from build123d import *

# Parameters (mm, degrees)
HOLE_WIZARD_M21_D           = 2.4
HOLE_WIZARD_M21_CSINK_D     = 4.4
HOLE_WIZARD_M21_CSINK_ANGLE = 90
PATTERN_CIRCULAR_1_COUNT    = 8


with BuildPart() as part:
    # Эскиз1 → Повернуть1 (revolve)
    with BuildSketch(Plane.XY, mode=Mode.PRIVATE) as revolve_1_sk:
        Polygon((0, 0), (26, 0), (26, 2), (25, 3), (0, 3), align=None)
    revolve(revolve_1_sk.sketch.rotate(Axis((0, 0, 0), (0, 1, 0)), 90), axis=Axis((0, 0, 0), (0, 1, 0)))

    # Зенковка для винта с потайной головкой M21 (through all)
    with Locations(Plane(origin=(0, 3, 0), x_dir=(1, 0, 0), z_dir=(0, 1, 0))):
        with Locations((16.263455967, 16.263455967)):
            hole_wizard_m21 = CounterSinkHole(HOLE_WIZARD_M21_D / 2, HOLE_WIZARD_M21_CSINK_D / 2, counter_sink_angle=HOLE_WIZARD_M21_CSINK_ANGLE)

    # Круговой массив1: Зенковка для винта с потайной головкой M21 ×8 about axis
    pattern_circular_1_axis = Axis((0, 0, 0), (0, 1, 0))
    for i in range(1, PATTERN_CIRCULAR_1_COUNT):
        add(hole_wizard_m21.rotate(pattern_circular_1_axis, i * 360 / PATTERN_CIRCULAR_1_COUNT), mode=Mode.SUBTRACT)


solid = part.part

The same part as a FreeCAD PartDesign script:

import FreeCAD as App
import Part
import Sketcher

V = App.Vector
Q = App.Units.Quantity

doc = App.newDocument("Part")
body = doc.addObject("PartDesign::Body", "Body")

# Sketch on XY plane
sketch1 = body.newObject("Sketcher::SketchObject", "Sketch")
sketch1.AttachmentSupport = (doc.getObject("XY_Plane"), [""])
sketch1.MapMode = "FlatFace"
sketch1.addGeometry(Part.LineSegment(V(0, 0, 0), V(26, 0, 0)), False)
sketch1.addGeometry(Part.LineSegment(V(26, 0, 0), V(26, 2, 0)), False)
sketch1.addGeometry(Part.LineSegment(V(26, 2, 0), V(25, 3, 0)), False)
sketch1.addGeometry(Part.LineSegment(V(25, 3, 0), V(0, 3, 0)), False)
sketch1.addGeometry(Part.LineSegment(V(0, 3, 0), V(0, 0, 0)), False)
sketch1.addConstraint(Sketcher.Constraint("Coincident", 0, 2, 1, 1))
sketch1.addConstraint(Sketcher.Constraint("Coincident", 1, 2, 2, 1))
sketch1.addConstraint(Sketcher.Constraint("Coincident", 2, 2, 3, 1))
sketch1.addConstraint(Sketcher.Constraint("Coincident", 3, 2, 4, 1))
sketch1.addConstraint(Sketcher.Constraint("Coincident", 4, 2, 0, 1))
sketch1.addConstraint(Sketcher.Constraint("Horizontal", 0))
sketch1.addConstraint(Sketcher.Constraint("Vertical", 1))
sketch1.addConstraint(Sketcher.Constraint("Horizontal", 3))
sketch1.addConstraint(Sketcher.Constraint("Vertical", 4))
sketch1.addConstraint(Sketcher.Constraint("Coincident", 4, 2, -1, 1))
sketch1.addConstraint(Sketcher.Constraint("DistanceX", 0, 1, 0, 2, Q("26 mm")))
sketch1.addConstraint(Sketcher.Constraint("DistanceX", 3, 2, 3, 1, Q("25 mm")))
sketch1.addConstraint(Sketcher.Constraint("DistanceY", 1, 1, 1, 2, Q("2 mm")))
sketch1.addConstraint(Sketcher.Constraint("DistanceY", 4, 2, 4, 1, Q("3 mm")))
revolution = body.newObject("PartDesign::Revolution", "Revolution")
revolution.Profile = sketch1
revolution.ReferenceAxis = (sketch1, ["V_Axis"])
revolution.Angle = 360

# Sketch on XZ plane
sketch2 = body.newObject("Sketcher::SketchObject", "Sketch001")
sketch2.AttachmentSupport = (doc.getObject("XZ_Plane"), [""])
sketch2.MapMode = "FlatFace"
sketch2.AttachmentOffset = App.Placement(V(0, 0, -3), App.Rotation())
sketch2.addGeometry(Part.Circle(V(16.3, -16.3, 0), V(0, 0, 1), 1.2), False)
sketch2.addConstraint(Sketcher.Constraint("Diameter", 0, Q("2.4 mm")))
sketch2.addConstraint(Sketcher.Constraint("DistanceX", -1, 1, 0, 3, Q("16.263456 mm")))
sketch2.addConstraint(Sketcher.Constraint("DistanceY", 0, 3, -1, 1, Q("16.263456 mm")))
doc.recompute()
hole = body.newObject("PartDesign::Hole", "Hole")
hole.Profile = sketch2
hole.ThreadType = "None"
hole.Diameter = 2.4
hole.DepthType = "ThroughAll"
hole.HoleCutType = "Countersink"
hole.HoleCutDiameter = 4.4
hole.HoleCutCountersinkAngle = 90
hole.Reversed = True
doc.recompute()

polarpattern = body.newObject("PartDesign::PolarPattern", "PolarPattern")
polarpattern.Originals = [hole]
polarpattern.Axis = (doc.getObject("Y_Axis"), [""])
polarpattern.Angle = 360
polarpattern.Occurrences = 8
body.Tip = polarpattern

doc.recompute()
